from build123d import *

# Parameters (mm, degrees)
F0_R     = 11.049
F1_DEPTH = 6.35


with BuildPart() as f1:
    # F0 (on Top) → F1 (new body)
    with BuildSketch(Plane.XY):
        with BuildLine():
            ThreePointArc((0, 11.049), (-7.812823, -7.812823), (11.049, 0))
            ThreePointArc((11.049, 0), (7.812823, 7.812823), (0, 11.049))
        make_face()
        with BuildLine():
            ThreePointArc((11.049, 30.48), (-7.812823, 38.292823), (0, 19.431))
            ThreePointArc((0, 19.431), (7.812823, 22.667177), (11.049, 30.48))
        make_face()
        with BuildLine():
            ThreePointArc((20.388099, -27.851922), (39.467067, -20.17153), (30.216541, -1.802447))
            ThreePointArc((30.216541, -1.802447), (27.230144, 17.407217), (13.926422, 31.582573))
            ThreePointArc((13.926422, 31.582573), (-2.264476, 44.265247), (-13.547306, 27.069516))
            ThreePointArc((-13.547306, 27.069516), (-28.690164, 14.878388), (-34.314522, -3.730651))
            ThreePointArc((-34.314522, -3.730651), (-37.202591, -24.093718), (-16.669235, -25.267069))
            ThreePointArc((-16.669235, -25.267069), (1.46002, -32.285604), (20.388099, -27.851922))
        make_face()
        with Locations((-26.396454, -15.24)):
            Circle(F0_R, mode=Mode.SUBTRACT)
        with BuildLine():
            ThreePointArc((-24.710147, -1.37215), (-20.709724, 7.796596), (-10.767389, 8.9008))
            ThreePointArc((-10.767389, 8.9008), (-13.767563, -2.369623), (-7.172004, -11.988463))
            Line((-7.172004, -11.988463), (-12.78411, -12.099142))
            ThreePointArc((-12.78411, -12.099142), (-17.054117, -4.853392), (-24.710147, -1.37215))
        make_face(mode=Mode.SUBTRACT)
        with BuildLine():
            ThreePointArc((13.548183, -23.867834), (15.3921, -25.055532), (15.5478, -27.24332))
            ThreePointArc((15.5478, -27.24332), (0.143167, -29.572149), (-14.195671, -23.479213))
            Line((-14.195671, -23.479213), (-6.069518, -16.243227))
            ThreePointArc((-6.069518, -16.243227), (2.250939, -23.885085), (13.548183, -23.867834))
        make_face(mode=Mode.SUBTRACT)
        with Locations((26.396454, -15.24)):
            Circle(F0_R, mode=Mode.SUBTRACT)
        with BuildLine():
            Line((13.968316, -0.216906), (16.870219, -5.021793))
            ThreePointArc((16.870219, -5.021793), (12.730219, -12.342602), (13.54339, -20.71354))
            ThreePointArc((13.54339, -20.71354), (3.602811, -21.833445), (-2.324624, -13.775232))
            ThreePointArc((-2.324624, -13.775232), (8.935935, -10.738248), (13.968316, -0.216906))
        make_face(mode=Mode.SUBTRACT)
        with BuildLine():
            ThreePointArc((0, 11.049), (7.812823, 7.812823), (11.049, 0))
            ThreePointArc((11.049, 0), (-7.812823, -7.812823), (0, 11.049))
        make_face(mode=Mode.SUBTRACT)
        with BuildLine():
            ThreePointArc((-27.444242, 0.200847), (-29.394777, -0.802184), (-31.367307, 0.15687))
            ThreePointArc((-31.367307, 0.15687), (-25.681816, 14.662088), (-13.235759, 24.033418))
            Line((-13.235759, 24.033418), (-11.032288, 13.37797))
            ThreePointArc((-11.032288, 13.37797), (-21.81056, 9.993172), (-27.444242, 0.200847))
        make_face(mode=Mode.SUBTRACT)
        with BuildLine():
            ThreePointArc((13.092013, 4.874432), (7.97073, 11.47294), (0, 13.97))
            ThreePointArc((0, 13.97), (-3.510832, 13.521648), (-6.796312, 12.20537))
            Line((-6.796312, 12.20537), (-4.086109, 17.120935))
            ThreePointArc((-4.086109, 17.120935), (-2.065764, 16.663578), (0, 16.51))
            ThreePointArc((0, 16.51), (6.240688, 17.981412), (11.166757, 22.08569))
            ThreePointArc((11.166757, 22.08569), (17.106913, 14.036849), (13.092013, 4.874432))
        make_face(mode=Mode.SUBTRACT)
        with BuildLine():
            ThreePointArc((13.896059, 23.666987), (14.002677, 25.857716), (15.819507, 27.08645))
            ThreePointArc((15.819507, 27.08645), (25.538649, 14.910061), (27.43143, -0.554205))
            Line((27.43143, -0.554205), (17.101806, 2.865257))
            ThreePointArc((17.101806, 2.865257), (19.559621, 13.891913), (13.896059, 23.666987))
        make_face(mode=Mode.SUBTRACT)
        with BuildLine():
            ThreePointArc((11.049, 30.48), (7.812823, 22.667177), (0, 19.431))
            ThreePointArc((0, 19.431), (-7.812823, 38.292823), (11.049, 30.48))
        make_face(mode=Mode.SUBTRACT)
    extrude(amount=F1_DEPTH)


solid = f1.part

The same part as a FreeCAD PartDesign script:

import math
import FreeCAD as App
import Part
import Sketcher
from FreeCAD import Vector
Q = App.Units.Quantity

doc = App.newDocument("Part")
body = doc.addObject("PartDesign::Body", "Body")

# Sketch on XY plane
sketch1 = body.newObject("Sketcher::SketchObject", "Sketch")
sketch1.AttachmentSupport = (doc.getObject("XY_Plane"), [""])
sketch1.MapMode = "FlatFace"
sketch1.addGeometry([
    Part.ArcOfCircle(Part.Circle(Vector(26.4, -15.2, 0), Vector(0, 0, 1), 14), math.radians(-115), math.radians(74)),  # 0
    Part.ArcOfCircle(Part.Circle(Vector(-2.4, 3, 0), Vector(0, 0, 1), 32.9), math.radians(-8), math.radians(60)),  # 1
    Part.ArcOfCircle(Part.Circle(Vector(0, 30.5, 0), Vector(0, 0, 1), 14), math.radians(5), math.radians(194)),  # 2
    Part.ArcOfCircle(Part.Circle(Vector(-1.4, -3.5, 0), Vector(0, 0, 1), 32.9), math.radians(112), math.radians(180)),  # 3
    Part.ArcOfCircle(Part.Circle(Vector(-26.4, -15.2, 0), Vector(0, 0, 1), 14), math.radians(125), math.radians(314)),  # 4
    Part.ArcOfCircle(Part.Circle(Vector(3.8, 0.6, 0), Vector(0, 0, 1), 32.9), math.radians(-128), math.radians(-60)),  # 5
    Part.Circle(Vector(-26.4, -15.2, 0), Vector(0, 0, 1), 11),  # 6
    Part.ArcOfCircle(Part.Circle(Vector(-26.4, -15.2, 0), Vector(0, 0, 1), 14), math.radians(13), math.radians(83)),  # 7
    Part.ArcOfCircle(Part.Circle(Vector(-14.8, -0.2, 0), Vector(0, 0, 1), 10), math.radians(66), math.radians(186)),  # 8
    Part.ArcOfCircle(Part.Circle(Vector(0, 0, 0), Vector(0, 0, 1), 14), math.radians(140), math.radians(239)),  # 9
    Part.LineSegment(Vector(-7.2, -12, 0), Vector(-12.8, -12.1, 0)),  # 10
    Part.ArcOfCircle(Part.Circle(Vector(0, 0, 0), Vector(0, 0, 1), 11), math.radians(90), math.radians(360)),  # 11
    Part.ArcOfCircle(Part.Circle(Vector(0, 0, 0), Vector(0, 0, 1), 11), math.radians(0), math.radians(90)),  # 12
    Part.ArcOfCircle(Part.Circle(Vector(7.9, -9.4, 0), Vector(0, 0, 1), 15.5), math.radians(-154), math.radians(-69)),  # 13
    Part.ArcOfCircle(Part.Circle(Vector(13.3, -26.3, 0), Vector(0, 0, 1), 2.5), math.radians(-23), math.radians(84)),  # 14
    Part.ArcOfCircle(Part.Circle(Vector(3.7, -1.2, 0), Vector(0, 0, 1), 28.6), math.radians(-129), math.radians(-66)),  # 15
    Part.LineSegment(Vector(-14.2, -23.5, 0), Vector(-6.1, -16.2, 0)),  # 16
    Part.Circle(Vector(26.4, -15.2, 0), Vector(0, 0, 1), 11),  # 17
    Part.ArcOfCircle(Part.Circle(Vector(0, 0, 0), Vector(0, 0, 1), 14), math.radians(-100), math.radians(-1)),  # 18
    Part.LineSegment(Vector(14, -0.2, 0), Vector(16.9, -5, 0)),  # 19
    Part.ArcOfCircle(Part.Circle(Vector(26.4, -15.2, 0), Vector(0, 0, 1), 14), math.radians(133), math.radians(203)),  # 20
    Part.ArcOfCircle(Part.Circle(Vector(7.6, -12.7, 0), Vector(0, 0, 1), 10), math.radians(-174), math.radians(-54)),  # 21
    Part.ArcOfCircle(Part.Circle(Vector(-12.1, -2.1, 0), Vector(0, 0, 1), 15.5), math.radians(86), math.radians(171)),  # 22
    Part.ArcOfCircle(Part.Circle(Vector(-29.4, 1.6, 0), Vector(0, 0, 1), 2.5), math.radians(-143), math.radians(-36)),  # 23
    Part.ArcOfCircle(Part.Circle(Vector(-2.9, -2.6, 0), Vector(0, 0, 1), 28.6), math.radians(111), math.radians(174)),  # 24
    Part.LineSegment(Vector(-13.2, 24, 0), Vector(-11, 13.4, 0)),  # 25
    Part.ArcOfCircle(Part.Circle(Vector(0, 30.5, 0), Vector(0, 0, 1), 11), math.radians(0), math.radians(270)),  # 26
    Part.ArcOfCircle(Part.Circle(Vector(0, 30.5, 0), Vector(0, 0, 1), 11), math.radians(-90), math.radians(0)),  # 27
    Part.ArcOfCircle(Part.Circle(Vector(7.2, 12.9, 0), Vector(0, 0, 1), 10), math.radians(-54), math.radians(66)),  # 28
    Part.ArcOfCircle(Part.Circle(Vector(0, 0, 0), Vector(0, 0, 1), 14), math.radians(20), math.radians(90)),  # 29
    Part.ArcOfCircle(Part.Circle(Vector(0, 0, 0), Vector(0, 0, 1), 14), math.radians(90), math.radians(119)),  # 30
    Part.LineSegment(Vector(-6.8, 12.2, 0), Vector(-4.1, 17.1, 0)),  # 31
    Part.ArcOfCircle(Part.Circle(Vector(0, 30.5, 0), Vector(0, 0, 1), 14), math.radians(-107.01), math.radians(-90)),  # 32
    Part.ArcOfCircle(Part.Circle(Vector(0, 30.5, 0), Vector(0, 0, 1), 14), math.radians(-90), math.radians(-37)),  # 33
    Part.ArcOfCircle(Part.Circle(Vector(4.2, 11.5, 0), Vector(0, 0, 1), 15.5), math.radians(-34), math.radians(51)),  # 34
    Part.ArcOfCircle(Part.Circle(Vector(16.1, 24.7, 0), Vector(0, 0, 1), 2.5), math.radians(97), math.radians(204)),  # 35
    Part.ArcOfCircle(Part.Circle(Vector(-0.8, 3.8, 0), Vector(0, 0, 1), 28.6), math.radians(-9), math.radians(54)),  # 36
    Part.LineSegment(Vector(27.4, -0.6, 0), Vector(17.1, 2.9, 0)),  # 37
], False)
sketch1.addConstraint([
    Sketcher.Constraint("Coincident", 0, 2, 1, 1),
    Sketcher.Constraint("Coincident", 1, 2, 2, 1),
    Sketcher.Constraint("Coincident", 2, 2, 3, 1),
    Sketcher.Constraint("Coincident", 3, 2, 4, 1),
    Sketcher.Constraint("Coincident", 4, 2, 5, 1),
    Sketcher.Constraint("Coincident", 5, 2, 0, 1),
    Sketcher.Constraint("Coincident", 7, 2, 8, 2),
    Sketcher.Constraint("Coincident", 8, 1, 9, 1),
    Sketcher.Constraint("Coincident", 9, 2, 10, 1),
    Sketcher.Constraint("Coincident", 10, 2, 7, 1),
    Sketcher.Constraint("Tangent", 11, 1, 12, 2),
    Sketcher.Constraint("Coincident", 12, 1, 11, 2),
    Sketcher.Constraint("Coincident", 13, 2, 14, 2),
    Sketcher.Constraint("Coincident", 14, 1, 15, 2),
    Sketcher.Constraint("Coincident", 15, 1, 16, 1),
    Sketcher.Constraint("Coincident", 16, 2, 13, 1),
    Sketcher.Constraint("Coincident", 18, 2, 19, 1),
    Sketcher.Constraint("Coincident", 19, 2, 20, 1),
    Sketcher.Constraint("Coincident", 20, 2, 21, 2),
    Sketcher.Constraint("Coincident", 21, 1, 18, 1),
    Sketcher.Constraint("Coincident", 22, 2, 23, 2),
    Sketcher.Constraint("Coincident", 23, 1, 24, 2),
    Sketcher.Constraint("Coincident", 24, 1, 25, 1),
    Sketcher.Constraint("Coincident", 25, 2, 22, 1),
    Sketcher.Constraint("Tangent", 26, 1, 27, 2),
    Sketcher.Constraint("Coincident", 27, 1, 26, 2),
    Sketcher.Constraint("Coincident", 28, 1, 29, 1),
    Sketcher.Constraint("Tangent", 29, 2, 30, 1),
    Sketcher.Constraint("Coincident", 30, 2, 31, 1),
    Sketcher.Constraint("Coincident", 31, 2, 32, 1),
    Sketcher.Constraint("Tangent", 32, 2, 33, 1),
    Sketcher.Constraint("Coincident", 33, 2, 28, 2),
    Sketcher.Constraint("Coincident", 34, 2, 35, 2),
    Sketcher.Constraint("Coincident", 35, 1, 36, 2),
    Sketcher.Constraint("Coincident", 36, 1, 37, 1),
    Sketcher.Constraint("Coincident", 37, 2, 34, 1),
    Sketcher.Constraint("Coincident", 9, 3, -1, 1),
    Sketcher.Constraint("Coincident", 11, 3, -1, 1),
    Sketcher.Constraint("Coincident", 18, 3, -1, 1),
    Sketcher.Constraint("Coincident", 29, 3, -1, 1),
    Sketcher.Constraint("Coincident", 6, 3, 4, 3),
    Sketcher.Constraint("Coincident", 7, 3, 4, 3),
    Sketcher.Constraint("Coincident", 17, 3, 0, 3),
    Sketcher.Constraint("Coincident", 20, 3, 0, 3),
    Sketcher.Constraint("Coincident", 26, 3, 2, 3),
    Sketcher.Constraint("Coincident", 33, 3, 2, 3),
    Sketcher.Constraint("Equal", 0, 2),
    Sketcher.Constraint("Equal", 2, 4),
    Sketcher.Constraint("Equal", 3, 5),
    Sketcher.Constraint("Equal", 4, 7),
    Sketcher.Constraint("Equal", 4, 9),
    Sketcher.Constraint("Equal", 6, 11),
    Sketcher.Constraint("Equal", 12, 17),
    Sketcher.Constraint("Equal", 9, 18),
    Sketcher.Constraint("Equal", 18, 20),
    Sketcher.Constraint("Equal", 8, 21),
    Sketcher.Constraint("Equal", 13, 22),
    Sketcher.Constraint("Equal", 14, 23),
    Sketcher.Constraint("Equal", 17, 26),
    Sketcher.Constraint("Equal", 21, 28),
    Sketcher.Constraint("Equal", 20, 29),
    Sketcher.Constraint("Equal", 29, 30),
    Sketcher.Constraint("Equal", 22, 34),
    Sketcher.Constraint("Equal", 23, 35),
    Sketcher.Constraint("Equal", 24, 36),
    Sketcher.Constraint("Symmetric", 0, 3, 4, 3, -2),
    Sketcher.Constraint("PointOnObject", 2, 3, -2),
    Sketcher.Constraint("PointOnObject", 11, 1, -2),
    Sketcher.Constraint("PointOnObject", 12, 1, -1),
    Sketcher.Constraint("PointOnObject", 27, 1, -2),
    Sketcher.Constraint("PointOnObject", 29, 2, -2),
    Sketcher.Constraint("PointOnObject", 32, 2, -2),
    Sketcher.Constraint("Horizontal", 27, 3, 26, 1),
    Sketcher.Constraint("Equal", 10, 19),
    Sketcher.Constraint("Equal", 16, 25),
    Sketcher.Constraint("Equal", 19, 31),
    Sketcher.Constraint("Equal", 25, 37),
    Sketcher.Constraint("Diameter", 6, Q("0.87 in")),
    Sketcher.Constraint("Radius", 0, Q("0.55 in")),
    Sketcher.Constraint("Radius", 33, Q("0.5500002 in")),
    Sketcher.Constraint("DistanceY", 0, 3, -1, 1, Q("0.6 in")),
    Sketcher.Constraint("DistanceY", -1, 1, 2, 3, Q("1.2 in")),
    Sketcher.Constraint("Radius", 1, 32.920578),
    Sketcher.Constraint("Radius", 3, 32.920581),
    Sketcher.Constraint("Radius", 36, 28.593231),
    Sketcher.Constraint("Radius", 8, 9.989803),
    Sketcher.Constraint("Radius", 13, 15.531716),
    Sketcher.Constraint("Radius", 14, 2.451656),
    Sketcher.Constraint("Radius", 15, 28.593234),
    Sketcher.Constraint("Radius", 32, 13.970014),
    Sketcher.Constraint("DistanceX", -1, 1, 21, 3, 7.605001),
    Sketcher.Constraint("DistanceX", -1, 1, 5, 2, 20.388099),
    Sketcher.Constraint("DistanceY", -1, 1, 8, 1, 8.9008),
    Sketcher.Constraint("DistanceX", -1, 1, 14, 1, 15.5478),
    Sketcher.Constraint("DistanceY", -1, 1, 1, 3, 2.970662),
    Sketcher.Constraint("DistanceY", 3, 3, -1, 1, 3.525841),
    Sketcher.Constraint("DistanceX", 8, 3, -1, 1, 14.784029),
    Sketcher.Constraint("DistanceX", -1, 1, 13, 3, 7.877468),
    Sketcher.Constraint("DistanceY", 13, 3, -1, 1, 9.408332),
    Sketcher.Constraint("DistanceY", 15, 3, -1, 1, 1.205168),
    Sketcher.Constraint("DistanceY", 21, 3, -1, 1, 12.680378),
    Sketcher.Constraint("DistanceX", 22, 3, -1, 1, 12.086589),
    Sketcher.Constraint("DistanceY", 22, 3, -1, 1, 2.117921),
    Sketcher.Constraint("DistanceX", 23, 3, -1, 1, 29.422258),
    Sketcher.Constraint("DistanceX", -1, 1, 28, 3, 7.17903),
    Sketcher.Constraint("DistanceX", -1, 1, 35, 3, 16.139481),
    Sketcher.Constraint("DistanceX", 36, 3, -1, 1, 0.822829),
    Sketcher.Constraint("DistanceX", -1, 1, 0, 2, 30.216541),
    Sketcher.Constraint("DistanceY", 3, 2, -1, 1, 3.730651),
    Sketcher.Constraint("DistanceY", 4, 2, -1, 1, 25.267069),
    Sketcher.Constraint("DistanceY", 7, 2, -1, 1, 1.37215),
    Sketcher.Constraint("DistanceX", 10, 2, -1, 1, 12.78411),
    Sketcher.Constraint("DistanceY", 14, 1, -1, 1, 27.24332),
    Sketcher.Constraint("DistanceX", 15, 1, -1, 1, 14.195671),
    Sketcher.Constraint("DistanceX", 16, 2, -1, 1, 6.069518),
    Sketcher.Constraint("DistanceX", -1, 1, 19, 2, 16.870219),
    Sketcher.Constraint("DistanceY", -1, 1, 23, 1, 0.15687),
    Sketcher.Constraint("DistanceX", 24, 1, -1, 1, 13.235759),
    Sketcher.Constraint("DistanceY", -1, 1, 25, 2, 13.37797),
    Sketcher.Constraint("DistanceX", 30, 2, -1, 1, 6.796312),
    Sketcher.Constraint("DistanceX", 31, 2, -1, 1, 4.086109),
    Sketcher.Constraint("DistanceY", -1, 1, 33, 2, 22.08569),
    Sketcher.Constraint("DistanceX", -1, 1, 34, 2, 13.896059),
    Sketcher.Constraint("DistanceY", -1, 1, 35, 1, 27.08645),
    Sketcher.Constraint("DistanceX", -1, 1, 36, 1, 27.43143),
    Sketcher.Constraint("DistanceX", -1, 1, 14, 3, 13.282777),
    Sketcher.Constraint("DistanceY", -1, 1, 23, 3, 1.649317),
    Sketcher.Constraint("DistanceX", -1, 1, 34, 3, 4.209123),
    Sketcher.Constraint("DistanceY", -1, 1, 34, 3, 11.526254),
])
pad1 = body.newObject("PartDesign::Pad", "Pad")
pad1.Profile = sketch1
pad1.Length = Q("0.25 in")

doc.recompute()
